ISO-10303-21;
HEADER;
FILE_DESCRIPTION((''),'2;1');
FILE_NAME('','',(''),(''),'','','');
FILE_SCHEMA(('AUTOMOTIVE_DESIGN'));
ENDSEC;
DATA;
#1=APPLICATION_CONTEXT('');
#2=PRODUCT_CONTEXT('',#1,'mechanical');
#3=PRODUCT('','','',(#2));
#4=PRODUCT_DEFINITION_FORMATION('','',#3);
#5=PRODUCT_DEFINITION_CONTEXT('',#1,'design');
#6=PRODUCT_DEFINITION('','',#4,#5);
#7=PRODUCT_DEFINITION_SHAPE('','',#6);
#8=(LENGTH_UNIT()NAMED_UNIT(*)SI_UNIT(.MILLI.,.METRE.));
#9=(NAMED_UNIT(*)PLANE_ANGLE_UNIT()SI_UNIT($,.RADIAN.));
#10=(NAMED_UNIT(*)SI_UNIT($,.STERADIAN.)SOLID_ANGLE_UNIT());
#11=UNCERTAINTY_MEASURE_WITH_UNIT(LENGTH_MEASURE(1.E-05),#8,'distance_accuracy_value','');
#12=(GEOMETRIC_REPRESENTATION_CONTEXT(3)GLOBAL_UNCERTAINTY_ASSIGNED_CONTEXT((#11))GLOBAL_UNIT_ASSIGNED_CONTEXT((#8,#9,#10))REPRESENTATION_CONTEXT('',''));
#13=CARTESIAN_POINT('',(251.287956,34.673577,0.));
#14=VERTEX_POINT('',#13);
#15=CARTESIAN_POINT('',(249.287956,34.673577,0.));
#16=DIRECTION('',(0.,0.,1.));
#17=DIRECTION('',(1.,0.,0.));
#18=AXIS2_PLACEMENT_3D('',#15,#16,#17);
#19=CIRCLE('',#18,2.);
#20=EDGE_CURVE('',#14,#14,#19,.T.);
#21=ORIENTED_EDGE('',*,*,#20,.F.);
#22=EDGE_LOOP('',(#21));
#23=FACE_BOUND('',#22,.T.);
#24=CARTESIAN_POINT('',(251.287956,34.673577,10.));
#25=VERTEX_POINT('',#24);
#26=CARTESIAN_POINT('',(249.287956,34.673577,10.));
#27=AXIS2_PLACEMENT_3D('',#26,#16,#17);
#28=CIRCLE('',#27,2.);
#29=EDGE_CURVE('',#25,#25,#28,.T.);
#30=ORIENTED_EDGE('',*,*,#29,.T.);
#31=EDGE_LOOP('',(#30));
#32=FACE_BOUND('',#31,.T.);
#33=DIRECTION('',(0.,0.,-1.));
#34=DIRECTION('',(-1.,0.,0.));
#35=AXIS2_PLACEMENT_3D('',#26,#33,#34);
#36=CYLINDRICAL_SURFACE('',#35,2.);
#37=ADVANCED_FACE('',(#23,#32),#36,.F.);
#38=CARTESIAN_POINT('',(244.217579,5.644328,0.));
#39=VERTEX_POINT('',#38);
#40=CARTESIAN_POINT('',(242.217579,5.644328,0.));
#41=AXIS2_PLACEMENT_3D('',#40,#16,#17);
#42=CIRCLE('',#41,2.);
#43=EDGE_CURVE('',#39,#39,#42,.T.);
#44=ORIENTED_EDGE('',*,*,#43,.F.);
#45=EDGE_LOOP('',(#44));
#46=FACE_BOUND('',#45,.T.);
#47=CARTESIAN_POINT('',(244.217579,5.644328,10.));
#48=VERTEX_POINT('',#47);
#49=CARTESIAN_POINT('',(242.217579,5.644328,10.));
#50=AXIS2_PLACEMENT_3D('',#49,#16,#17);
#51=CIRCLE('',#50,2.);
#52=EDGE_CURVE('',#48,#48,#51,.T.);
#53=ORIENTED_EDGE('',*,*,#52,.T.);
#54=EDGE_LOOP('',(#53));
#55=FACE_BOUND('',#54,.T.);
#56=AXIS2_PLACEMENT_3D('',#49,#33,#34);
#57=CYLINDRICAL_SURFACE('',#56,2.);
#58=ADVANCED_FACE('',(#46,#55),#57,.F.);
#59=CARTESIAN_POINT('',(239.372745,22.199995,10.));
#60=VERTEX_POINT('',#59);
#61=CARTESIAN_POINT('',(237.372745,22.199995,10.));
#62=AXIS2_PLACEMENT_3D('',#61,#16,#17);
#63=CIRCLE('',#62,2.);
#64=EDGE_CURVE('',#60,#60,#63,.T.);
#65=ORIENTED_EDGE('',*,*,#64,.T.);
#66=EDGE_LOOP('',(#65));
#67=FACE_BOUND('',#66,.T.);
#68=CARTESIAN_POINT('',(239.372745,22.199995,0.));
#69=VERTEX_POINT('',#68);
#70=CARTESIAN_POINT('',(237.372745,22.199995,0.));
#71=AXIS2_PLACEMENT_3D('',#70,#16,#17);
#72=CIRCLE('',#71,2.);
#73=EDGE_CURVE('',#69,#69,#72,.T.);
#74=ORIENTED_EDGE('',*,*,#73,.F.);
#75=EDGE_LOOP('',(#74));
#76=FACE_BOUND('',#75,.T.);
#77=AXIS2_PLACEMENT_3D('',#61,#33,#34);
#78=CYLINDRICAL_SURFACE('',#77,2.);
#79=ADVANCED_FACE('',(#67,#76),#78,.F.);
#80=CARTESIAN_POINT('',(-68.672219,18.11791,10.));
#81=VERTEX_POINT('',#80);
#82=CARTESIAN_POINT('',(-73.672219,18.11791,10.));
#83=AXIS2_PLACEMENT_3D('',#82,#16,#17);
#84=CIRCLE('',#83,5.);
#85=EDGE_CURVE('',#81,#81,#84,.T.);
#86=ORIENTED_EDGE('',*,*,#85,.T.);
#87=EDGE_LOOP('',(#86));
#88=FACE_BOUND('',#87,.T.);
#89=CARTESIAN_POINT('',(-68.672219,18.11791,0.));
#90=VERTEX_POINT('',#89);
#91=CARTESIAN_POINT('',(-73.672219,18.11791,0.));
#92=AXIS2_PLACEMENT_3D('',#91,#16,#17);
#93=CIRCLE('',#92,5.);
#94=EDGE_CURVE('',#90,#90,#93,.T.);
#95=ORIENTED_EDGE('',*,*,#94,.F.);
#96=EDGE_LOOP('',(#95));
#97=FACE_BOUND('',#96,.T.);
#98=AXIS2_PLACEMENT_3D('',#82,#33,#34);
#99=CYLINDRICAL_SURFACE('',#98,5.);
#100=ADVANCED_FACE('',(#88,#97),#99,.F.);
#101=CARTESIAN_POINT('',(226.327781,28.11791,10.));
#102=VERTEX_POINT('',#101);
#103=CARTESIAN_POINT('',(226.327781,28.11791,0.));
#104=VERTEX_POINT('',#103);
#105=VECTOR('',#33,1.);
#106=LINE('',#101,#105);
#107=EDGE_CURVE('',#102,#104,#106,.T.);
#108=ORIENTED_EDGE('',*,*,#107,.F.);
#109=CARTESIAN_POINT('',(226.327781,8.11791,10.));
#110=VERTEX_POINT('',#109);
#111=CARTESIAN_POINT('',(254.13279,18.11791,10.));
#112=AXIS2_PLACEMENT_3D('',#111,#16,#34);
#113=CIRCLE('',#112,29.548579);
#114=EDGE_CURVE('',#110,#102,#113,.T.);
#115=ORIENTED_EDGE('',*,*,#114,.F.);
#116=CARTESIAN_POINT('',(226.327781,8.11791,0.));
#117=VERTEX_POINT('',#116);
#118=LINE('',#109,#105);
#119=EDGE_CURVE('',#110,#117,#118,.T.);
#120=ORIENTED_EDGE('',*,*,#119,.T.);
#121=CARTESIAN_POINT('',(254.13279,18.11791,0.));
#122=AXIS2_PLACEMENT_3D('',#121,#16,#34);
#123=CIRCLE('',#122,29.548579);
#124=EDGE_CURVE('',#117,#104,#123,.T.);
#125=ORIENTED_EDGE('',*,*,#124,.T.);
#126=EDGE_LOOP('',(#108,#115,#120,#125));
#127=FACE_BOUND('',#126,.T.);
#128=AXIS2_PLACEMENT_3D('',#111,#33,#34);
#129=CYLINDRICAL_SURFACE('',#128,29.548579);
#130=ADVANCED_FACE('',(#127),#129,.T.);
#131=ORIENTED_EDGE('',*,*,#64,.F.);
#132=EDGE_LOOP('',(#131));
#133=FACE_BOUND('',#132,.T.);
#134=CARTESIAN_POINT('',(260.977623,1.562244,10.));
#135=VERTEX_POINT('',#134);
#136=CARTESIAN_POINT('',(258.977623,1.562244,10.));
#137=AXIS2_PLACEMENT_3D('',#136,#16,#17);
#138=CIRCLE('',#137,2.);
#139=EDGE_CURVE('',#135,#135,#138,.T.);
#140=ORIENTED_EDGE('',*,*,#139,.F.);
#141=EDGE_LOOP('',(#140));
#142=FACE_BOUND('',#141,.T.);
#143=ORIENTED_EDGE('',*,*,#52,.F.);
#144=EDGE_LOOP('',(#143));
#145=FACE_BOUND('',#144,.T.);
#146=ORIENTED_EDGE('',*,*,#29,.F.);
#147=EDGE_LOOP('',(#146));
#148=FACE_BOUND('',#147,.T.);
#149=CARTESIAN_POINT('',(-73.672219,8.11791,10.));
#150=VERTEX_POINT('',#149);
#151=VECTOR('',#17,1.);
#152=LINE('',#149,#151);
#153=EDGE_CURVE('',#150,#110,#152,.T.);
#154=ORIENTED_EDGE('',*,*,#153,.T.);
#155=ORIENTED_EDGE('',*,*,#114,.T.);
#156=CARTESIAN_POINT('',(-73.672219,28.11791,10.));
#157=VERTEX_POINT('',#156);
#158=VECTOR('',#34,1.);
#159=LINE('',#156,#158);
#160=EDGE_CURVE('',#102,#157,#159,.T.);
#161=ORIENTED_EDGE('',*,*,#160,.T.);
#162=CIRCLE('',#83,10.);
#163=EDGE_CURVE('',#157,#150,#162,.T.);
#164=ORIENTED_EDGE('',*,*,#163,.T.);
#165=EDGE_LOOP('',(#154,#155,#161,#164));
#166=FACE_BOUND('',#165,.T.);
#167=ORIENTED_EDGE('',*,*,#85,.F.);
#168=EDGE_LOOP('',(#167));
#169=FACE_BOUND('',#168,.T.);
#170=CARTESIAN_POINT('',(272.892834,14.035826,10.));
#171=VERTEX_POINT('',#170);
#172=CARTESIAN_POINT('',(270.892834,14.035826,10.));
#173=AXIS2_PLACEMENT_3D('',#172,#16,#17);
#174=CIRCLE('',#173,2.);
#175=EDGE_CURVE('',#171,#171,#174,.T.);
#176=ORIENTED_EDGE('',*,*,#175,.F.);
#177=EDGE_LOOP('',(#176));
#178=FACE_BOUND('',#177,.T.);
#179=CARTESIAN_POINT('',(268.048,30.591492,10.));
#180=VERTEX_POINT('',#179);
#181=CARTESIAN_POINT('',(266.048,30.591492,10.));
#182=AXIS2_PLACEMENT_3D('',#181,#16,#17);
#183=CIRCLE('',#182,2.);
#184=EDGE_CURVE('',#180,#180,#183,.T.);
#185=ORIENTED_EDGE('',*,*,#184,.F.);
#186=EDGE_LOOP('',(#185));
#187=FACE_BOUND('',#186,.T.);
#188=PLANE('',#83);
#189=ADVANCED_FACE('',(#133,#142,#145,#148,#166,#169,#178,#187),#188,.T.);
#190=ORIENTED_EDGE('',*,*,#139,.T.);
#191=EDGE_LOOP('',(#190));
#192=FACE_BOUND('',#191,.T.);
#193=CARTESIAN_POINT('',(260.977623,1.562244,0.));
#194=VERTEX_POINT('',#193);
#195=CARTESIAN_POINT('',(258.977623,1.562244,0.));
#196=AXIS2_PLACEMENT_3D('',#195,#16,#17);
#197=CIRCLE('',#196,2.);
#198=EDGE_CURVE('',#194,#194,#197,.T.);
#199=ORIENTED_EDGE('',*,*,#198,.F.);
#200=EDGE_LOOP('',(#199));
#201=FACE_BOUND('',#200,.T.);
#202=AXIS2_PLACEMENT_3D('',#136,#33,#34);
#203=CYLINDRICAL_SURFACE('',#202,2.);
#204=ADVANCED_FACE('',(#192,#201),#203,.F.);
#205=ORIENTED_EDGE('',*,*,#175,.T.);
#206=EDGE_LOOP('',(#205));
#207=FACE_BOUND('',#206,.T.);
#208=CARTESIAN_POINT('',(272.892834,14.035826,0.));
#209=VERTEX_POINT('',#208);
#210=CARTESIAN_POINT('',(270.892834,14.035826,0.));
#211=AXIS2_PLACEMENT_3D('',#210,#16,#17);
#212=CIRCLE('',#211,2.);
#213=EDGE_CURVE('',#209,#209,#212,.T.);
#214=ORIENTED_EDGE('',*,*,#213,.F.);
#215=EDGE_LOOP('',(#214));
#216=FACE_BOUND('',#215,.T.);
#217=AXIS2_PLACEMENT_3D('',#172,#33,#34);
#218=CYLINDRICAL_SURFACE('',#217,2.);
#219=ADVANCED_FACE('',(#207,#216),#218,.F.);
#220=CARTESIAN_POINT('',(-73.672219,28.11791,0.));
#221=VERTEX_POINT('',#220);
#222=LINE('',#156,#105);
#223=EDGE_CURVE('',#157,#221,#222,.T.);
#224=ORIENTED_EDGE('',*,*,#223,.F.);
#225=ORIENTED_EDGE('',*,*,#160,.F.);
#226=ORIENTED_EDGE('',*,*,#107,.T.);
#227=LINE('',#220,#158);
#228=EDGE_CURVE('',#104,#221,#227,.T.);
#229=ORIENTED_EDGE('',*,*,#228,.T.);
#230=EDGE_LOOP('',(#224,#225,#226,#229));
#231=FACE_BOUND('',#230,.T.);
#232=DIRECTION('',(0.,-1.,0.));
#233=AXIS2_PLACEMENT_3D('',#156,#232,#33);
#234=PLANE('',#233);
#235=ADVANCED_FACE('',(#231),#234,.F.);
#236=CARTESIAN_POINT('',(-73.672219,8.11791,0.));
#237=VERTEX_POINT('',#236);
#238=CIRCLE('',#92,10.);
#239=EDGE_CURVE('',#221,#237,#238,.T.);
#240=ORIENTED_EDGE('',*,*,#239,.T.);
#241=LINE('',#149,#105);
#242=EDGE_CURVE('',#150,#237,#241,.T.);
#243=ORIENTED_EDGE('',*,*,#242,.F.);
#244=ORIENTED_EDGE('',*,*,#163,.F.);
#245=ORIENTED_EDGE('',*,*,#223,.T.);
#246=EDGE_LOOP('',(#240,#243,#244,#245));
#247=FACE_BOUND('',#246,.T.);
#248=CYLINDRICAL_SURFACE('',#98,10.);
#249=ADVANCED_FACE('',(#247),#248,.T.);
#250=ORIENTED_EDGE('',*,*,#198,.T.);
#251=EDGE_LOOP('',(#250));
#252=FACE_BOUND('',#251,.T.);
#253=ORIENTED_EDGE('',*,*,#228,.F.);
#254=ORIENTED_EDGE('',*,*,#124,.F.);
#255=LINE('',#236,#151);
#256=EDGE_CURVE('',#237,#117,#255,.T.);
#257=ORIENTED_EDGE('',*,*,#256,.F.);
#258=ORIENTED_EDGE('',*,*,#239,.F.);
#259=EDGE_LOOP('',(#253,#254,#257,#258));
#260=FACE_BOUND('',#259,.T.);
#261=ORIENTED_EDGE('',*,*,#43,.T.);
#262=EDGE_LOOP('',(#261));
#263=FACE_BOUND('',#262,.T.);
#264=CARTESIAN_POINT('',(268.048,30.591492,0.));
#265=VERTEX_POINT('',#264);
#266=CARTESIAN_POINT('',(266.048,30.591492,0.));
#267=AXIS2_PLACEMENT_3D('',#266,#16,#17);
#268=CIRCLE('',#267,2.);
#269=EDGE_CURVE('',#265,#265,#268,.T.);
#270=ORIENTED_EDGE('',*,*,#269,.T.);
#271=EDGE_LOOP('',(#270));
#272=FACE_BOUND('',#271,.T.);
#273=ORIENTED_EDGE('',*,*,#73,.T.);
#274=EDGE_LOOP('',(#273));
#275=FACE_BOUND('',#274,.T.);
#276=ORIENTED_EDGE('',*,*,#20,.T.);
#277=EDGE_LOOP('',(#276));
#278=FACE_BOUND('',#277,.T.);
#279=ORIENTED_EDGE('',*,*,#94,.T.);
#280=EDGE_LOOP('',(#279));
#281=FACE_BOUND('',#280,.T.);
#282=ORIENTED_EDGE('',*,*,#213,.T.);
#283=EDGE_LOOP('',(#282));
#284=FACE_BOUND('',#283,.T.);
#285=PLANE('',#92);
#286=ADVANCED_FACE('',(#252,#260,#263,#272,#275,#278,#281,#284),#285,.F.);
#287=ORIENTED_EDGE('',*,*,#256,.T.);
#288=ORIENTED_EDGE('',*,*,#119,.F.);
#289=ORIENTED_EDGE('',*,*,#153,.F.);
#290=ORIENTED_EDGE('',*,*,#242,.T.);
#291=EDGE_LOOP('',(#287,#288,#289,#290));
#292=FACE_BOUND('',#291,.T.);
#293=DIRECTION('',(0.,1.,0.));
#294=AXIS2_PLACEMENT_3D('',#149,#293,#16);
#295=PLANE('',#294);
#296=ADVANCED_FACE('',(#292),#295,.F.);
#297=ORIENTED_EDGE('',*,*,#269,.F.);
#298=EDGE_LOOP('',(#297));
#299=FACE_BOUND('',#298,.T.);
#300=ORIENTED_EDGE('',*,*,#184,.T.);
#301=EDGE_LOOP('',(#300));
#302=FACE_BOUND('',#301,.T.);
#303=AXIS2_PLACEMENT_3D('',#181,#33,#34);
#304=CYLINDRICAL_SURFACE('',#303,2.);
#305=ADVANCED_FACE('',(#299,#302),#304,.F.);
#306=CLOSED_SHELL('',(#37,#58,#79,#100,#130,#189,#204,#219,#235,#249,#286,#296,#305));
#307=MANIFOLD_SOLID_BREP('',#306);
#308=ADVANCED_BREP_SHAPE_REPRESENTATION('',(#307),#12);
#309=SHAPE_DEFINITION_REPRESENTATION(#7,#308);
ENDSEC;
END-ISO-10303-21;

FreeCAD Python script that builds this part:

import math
import FreeCAD as App
import Part
import Sketcher

V = App.Vector

doc = App.newDocument("Part")
body = doc.addObject("PartDesign::Body", "Body")

# Sketch on XY plane
sketch1 = body.newObject("Sketcher::SketchObject", "Sketch")
sketch1.AttachmentSupport = (doc.getObject("XY_Plane"), [""])
sketch1.MapMode = "FlatFace"
sketch1.addGeometry(Part.LineSegment(V(226.327781, 28.11791, 0), V(-73.672219, 28.11791, 0)), False)
sketch1.addGeometry(Part.ArcOfCircle(Part.Circle(V(-73.672219, 18.11791, 0), V(0, 0, 1), 10), math.radians(90), math.radians(270)), False)
sketch1.addGeometry(Part.LineSegment(V(-73.672219, 8.11791, 0), V(226.327781, 8.11791, 0)), False)
sketch1.addGeometry(Part.ArcOfCircle(Part.Circle(V(254.13279, 18.11791, 0), V(0, 0, 1), 29.548579), math.radians(-160.219008), math.radians(160.219008)), False)
sketch1.addGeometry(Part.Circle(V(258.977623, 1.562244, 0), V(0, 0, 1), 2), False)
sketch1.addGeometry(Part.Circle(V(242.217579, 5.644328, 0), V(0, 0, 1), 2), False)
sketch1.addGeometry(Part.Circle(V(270.892834, 14.035826, 0), V(0, 0, 1), 2), False)
sketch1.addGeometry(Part.Circle(V(237.372745, 22.199995, 0), V(0, 0, 1), 2), False)
sketch1.addGeometry(Part.Circle(V(266.048, 30.591492, 0), V(0, 0, 1), 2), False)
sketch1.addGeometry(Part.Circle(V(249.287956, 34.673577, 0), V(0, 0, 1), 2), False)
sketch1.addGeometry(Part.Circle(V(-73.672219, 18.11791, 0), V(0, 0, 1), 5), False)
sketch1.addConstraint(Sketcher.Constraint("Tangent", 0, 2, 1, 1))
sketch1.addConstraint(Sketcher.Constraint("Tangent", 1, 2, 2, 1))
sketch1.addConstraint(Sketcher.Constraint("Coincident", 2, 2, 3, 1))
sketch1.addConstraint(Sketcher.Constraint("Coincident", 3, 2, 0, 1))
sketch1.addConstraint(Sketcher.Constraint("Horizontal", 0))
sketch1.addConstraint(Sketcher.Constraint("Horizontal", 2))
sketch1.addConstraint(Sketcher.Constraint("Coincident", 10, 3, 1, 3))
sketch1.addConstraint(Sketcher.Constraint("Equal", 4, 5))
sketch1.addConstraint(Sketcher.Constraint("Equal", 5, 6))
sketch1.addConstraint(Sketcher.Constraint("Equal", 6, 7))
sketch1.addConstraint(Sketcher.Constraint("Equal", 7, 8))
sketch1.addConstraint(Sketcher.Constraint("Equal", 8, 9))
sketch1.addConstraint(Sketcher.Constraint("Horizontal", 1, 3, 3, 3))
sketch1.addConstraint(Sketcher.Constraint("Diameter", 4, 4.0))
sketch1.addConstraint(Sketcher.Constraint("Diameter", 10, 10.0))
sketch1.addConstraint(Sketcher.Constraint("Radius", 1, 10.0))
sketch1.addConstraint(Sketcher.Constraint("DistanceX", 0, 2, 0, 1, 300.0))
sketch1.addConstraint(Sketcher.Constraint("Radius", 3, 29.548579))
sketch1.addConstraint(Sketcher.Constraint("DistanceX", -1, 1, 8, 3, 266.048))
sketch1.addConstraint(Sketcher.Constraint("DistanceX", 1, 3, -1, 1, 73.672219))
sketch1.addConstraint(Sketcher.Constraint("DistanceY", -1, 1, 1, 3, 18.11791))
sketch1.addConstraint(Sketcher.Constraint("DistanceX", -1, 1, 5, 3, 242.217579))
sketch1.addConstraint(Sketcher.Constraint("DistanceY", -1, 1, 5, 3, 5.644328))
sketch1.addConstraint(Sketcher.Constraint("DistanceX", 1, 3, 4, 3, 332.649842))
sketch1.addConstraint(Sketcher.Constraint("DistanceX", 4, 3, 6, 3, 11.915211))
sketch1.addConstraint(Sketcher.Constraint("DistanceY", 4, 3, 7, 3, 20.637751))
sketch1.addConstraint(Sketcher.Constraint("DistanceX", 7, 3, 6, 3, 33.520089))
sketch1.addConstraint(Sketcher.Constraint("DistanceY", 6, 3, 7, 3, 8.164169))
sketch1.addConstraint(Sketcher.Constraint("DistanceY", 4, 3, 8, 3, 29.029248))
sketch1.addConstraint(Sketcher.Constraint("DistanceX", 7, 3, 9, 3, 11.915211))
sketch1.addConstraint(Sketcher.Constraint("DistanceY", 5, 3, 9, 3, 29.029248))
sketch1.addConstraint(Sketcher.Constraint("DistanceY", 6, 3, 9, 3, 20.637751))
pad1 = body.newObject("PartDesign::Pad", "Pad")
pad1.Profile = sketch1
pad1.Length = 10

doc.recompute()
